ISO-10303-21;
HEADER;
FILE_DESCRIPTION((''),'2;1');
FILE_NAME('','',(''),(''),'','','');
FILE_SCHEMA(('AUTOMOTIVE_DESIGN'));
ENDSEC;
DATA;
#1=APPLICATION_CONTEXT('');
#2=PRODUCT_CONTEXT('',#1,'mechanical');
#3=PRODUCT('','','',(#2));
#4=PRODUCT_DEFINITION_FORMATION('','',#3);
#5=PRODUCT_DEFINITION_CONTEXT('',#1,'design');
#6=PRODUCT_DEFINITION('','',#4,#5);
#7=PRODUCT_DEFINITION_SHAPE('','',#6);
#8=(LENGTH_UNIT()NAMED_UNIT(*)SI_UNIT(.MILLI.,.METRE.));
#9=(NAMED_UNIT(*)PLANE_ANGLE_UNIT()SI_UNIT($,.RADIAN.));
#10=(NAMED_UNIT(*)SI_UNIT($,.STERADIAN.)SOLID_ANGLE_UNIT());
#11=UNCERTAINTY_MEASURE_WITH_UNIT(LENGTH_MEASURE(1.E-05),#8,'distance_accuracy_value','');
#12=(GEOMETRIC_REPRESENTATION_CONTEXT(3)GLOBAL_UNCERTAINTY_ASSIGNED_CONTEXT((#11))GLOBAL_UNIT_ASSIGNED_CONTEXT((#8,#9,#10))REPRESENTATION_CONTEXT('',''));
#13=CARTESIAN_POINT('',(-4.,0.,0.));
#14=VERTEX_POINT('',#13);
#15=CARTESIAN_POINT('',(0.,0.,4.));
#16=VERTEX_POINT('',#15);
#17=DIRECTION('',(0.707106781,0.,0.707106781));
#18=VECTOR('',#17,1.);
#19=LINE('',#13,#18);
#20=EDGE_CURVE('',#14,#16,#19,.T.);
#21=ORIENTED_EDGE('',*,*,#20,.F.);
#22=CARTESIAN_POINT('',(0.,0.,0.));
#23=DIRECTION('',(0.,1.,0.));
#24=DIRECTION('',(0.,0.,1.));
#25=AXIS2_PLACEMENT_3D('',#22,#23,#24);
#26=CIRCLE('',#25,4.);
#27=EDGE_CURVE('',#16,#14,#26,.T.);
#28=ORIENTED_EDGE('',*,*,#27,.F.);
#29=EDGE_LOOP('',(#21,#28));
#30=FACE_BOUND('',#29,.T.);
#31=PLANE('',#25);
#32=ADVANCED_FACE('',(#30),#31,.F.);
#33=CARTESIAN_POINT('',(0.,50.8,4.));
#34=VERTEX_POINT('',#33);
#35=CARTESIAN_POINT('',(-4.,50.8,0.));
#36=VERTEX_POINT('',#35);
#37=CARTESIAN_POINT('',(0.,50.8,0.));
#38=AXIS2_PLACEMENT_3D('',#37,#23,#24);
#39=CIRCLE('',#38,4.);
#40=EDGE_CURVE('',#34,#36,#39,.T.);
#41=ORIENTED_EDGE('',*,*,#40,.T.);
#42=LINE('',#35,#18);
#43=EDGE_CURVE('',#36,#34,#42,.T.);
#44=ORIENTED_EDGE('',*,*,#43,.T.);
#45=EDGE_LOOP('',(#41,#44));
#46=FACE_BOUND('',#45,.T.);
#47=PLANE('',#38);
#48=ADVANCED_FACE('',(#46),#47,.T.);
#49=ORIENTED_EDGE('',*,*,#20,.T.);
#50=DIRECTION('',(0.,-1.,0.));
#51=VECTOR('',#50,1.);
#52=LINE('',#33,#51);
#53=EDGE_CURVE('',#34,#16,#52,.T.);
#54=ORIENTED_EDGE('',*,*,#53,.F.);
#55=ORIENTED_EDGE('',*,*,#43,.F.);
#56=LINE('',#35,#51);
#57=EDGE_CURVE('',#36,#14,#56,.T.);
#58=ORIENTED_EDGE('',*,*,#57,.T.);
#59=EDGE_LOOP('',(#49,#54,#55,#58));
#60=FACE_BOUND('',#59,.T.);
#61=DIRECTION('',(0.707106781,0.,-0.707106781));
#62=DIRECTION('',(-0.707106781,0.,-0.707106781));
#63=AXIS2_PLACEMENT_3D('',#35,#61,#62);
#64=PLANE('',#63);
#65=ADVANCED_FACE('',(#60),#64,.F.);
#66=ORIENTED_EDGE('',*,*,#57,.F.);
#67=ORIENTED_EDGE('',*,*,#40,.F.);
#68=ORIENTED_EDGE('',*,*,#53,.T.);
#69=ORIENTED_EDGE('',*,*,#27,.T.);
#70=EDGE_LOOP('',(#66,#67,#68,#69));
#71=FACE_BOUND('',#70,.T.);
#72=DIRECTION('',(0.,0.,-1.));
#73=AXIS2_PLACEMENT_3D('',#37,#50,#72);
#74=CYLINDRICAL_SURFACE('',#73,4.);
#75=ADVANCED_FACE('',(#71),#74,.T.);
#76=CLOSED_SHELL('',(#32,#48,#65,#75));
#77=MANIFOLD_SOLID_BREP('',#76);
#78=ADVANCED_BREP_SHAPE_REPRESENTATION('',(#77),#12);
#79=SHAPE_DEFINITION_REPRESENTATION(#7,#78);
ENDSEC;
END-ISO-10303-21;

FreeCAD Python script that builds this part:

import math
import FreeCAD as App
import Part
import Sketcher
Q = App.Units.Quantity

doc = App.newDocument("Part")
body = doc.addObject("PartDesign::Body", "Body")

# Sketch on XZ plane
sketch1 = body.newObject("Sketcher::SketchObject", "Sketch")
sketch1.AttachmentSupport = (doc.getObject("XZ_Plane"), [""])
sketch1.MapMode = "FlatFace"
sketch1.addGeometry(Part.LineSegment(App.Vector(-4, 0, 0), App.Vector(0, 4, 0)), False)
sketch1.addGeometry(Part.ArcOfCircle(Part.Circle(App.Vector(0, 0, 0), App.Vector(0, 0, 1), 4), math.radians(180), math.radians(450)), False)
sketch1.addConstraint(Sketcher.Constraint("Coincident", 0, 1, 1, 1))
sketch1.addConstraint(Sketcher.Constraint("Coincident", 1, 2, 0, 2))
sketch1.addConstraint(Sketcher.Constraint("Coincident", 1, 3, -1, 1))
sketch1.addConstraint(Sketcher.Constraint("PointOnObject", 0, 1, -1))
sketch1.addConstraint(Sketcher.Constraint("PointOnObject", 1, 2, -2))
sketch1.addConstraint(Sketcher.Constraint("Radius", 1, Q("4 mm")))
pad1 = body.newObject("PartDesign::Pad", "Pad")
pad1.Profile = sketch1
pad1.Length = 50.8
pad1.Reversed = True

doc.recompute()
